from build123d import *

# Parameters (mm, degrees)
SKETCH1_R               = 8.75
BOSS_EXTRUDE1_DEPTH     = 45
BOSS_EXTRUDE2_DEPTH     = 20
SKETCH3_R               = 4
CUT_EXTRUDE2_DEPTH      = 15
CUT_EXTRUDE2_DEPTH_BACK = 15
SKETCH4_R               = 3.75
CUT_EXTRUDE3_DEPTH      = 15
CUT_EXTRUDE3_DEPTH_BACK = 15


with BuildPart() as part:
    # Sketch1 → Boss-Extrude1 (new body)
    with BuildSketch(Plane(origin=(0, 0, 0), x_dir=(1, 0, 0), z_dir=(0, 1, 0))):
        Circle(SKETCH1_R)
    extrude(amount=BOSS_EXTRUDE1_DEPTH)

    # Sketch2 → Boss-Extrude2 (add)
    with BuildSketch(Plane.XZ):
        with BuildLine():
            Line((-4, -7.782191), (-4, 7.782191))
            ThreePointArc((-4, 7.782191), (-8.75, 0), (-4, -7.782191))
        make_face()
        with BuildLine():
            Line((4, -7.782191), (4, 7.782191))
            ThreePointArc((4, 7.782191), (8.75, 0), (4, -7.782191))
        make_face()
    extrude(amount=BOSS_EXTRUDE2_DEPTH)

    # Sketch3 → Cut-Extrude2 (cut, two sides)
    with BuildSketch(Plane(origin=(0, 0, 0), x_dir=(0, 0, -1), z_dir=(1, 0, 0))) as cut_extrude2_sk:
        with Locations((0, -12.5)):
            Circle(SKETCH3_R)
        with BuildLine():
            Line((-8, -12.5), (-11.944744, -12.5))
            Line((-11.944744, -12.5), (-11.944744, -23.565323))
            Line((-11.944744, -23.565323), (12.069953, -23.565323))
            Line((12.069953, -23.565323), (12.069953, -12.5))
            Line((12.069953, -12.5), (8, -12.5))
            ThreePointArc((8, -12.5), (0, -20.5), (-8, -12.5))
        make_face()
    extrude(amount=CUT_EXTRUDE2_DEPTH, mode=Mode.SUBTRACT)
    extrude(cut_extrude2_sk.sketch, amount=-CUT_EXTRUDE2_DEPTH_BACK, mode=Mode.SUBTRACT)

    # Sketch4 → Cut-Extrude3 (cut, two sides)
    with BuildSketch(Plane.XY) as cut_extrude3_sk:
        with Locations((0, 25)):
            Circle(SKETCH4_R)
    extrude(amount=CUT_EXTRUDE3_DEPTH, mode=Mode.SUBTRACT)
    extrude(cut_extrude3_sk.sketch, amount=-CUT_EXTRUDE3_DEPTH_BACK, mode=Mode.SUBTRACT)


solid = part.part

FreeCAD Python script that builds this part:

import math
import FreeCAD as App
import Part
import Sketcher

V = App.Vector

doc = App.newDocument("Part")
body = doc.addObject("PartDesign::Body", "Body")

sketch1 = body.newObject("Sketcher::SketchObject", "Sketch")
sketch1.AttachmentSupport = (doc.getObject("XZ_Plane"), [""])
sketch1.MapMode = "FlatFace"
sketch1.addGeometry(Part.Circle(V(0, 0, 0), V(0, 0, 1), 9), False)
sketch1.addConstraint([
    Sketcher.Constraint("Coincident", 0, 3, -1, 1),
    Sketcher.Constraint("Diameter", 0, 17.5),
])
pad1 = body.newObject("PartDesign::Pad", "Pad")
pad1.Profile = sketch1
pad1.Length = 45
pad1.Reversed = True

sketch2 = body.newObject("Sketcher::SketchObject", "Sketch001")
sketch2.AttachmentSupport = (doc.getObject("XZ_Plane"), [""])
sketch2.MapMode = "FlatFace"
sketch2.addGeometry([
    Part.LineSegment(V(-4, -8, 0), V(-4, 8, 0)),
    Part.ArcOfCircle(Part.Circle(V(0, 0, 0), V(0, 0, 1), 9), math.radians(117), math.radians(243)),
    Part.LineSegment(V(4, 8, 0), V(4, -8, 0)),
    Part.ArcOfCircle(Part.Circle(V(0, 0, 0), V(0, 0, 1), 9), math.radians(-63), math.radians(63)),
], False)
sketch2.addConstraint([
    Sketcher.Constraint("Coincident", 0, 1, 1, 2),
    Sketcher.Constraint("Coincident", 1, 1, 0, 2),
    Sketcher.Constraint("Coincident", 2, 1, 3, 2),
    Sketcher.Constraint("Coincident", 3, 1, 2, 2),
    Sketcher.Constraint("Vertical", 0),
    Sketcher.Constraint("Vertical", 2),
    Sketcher.Constraint("Coincident", 1, 3, -1, 1),
    Sketcher.Constraint("Coincident", 3, 3, -1, 1),
    Sketcher.Constraint("Equal", 1, 3),
    Sketcher.Constraint("Horizontal", 1, 1, 2, 1),
    Sketcher.Constraint("Radius", 1, 8.75),
    Sketcher.Constraint("DistanceX", 0, 1, -1, 1, 4.0),
])
pad2 = body.newObject("PartDesign::Pad", "Pad001")
pad2.Profile = sketch2
pad2.Length = 20

sketch3 = body.newObject("Sketcher::SketchObject", "Sketch002")
sketch3.AttachmentSupport = (doc.getObject("YZ_Plane"), [""])
sketch3.MapMode = "FlatFace"
sketch3.addGeometry([
    Part.Circle(V(-12.5, 0, 0), V(0, 0, 1), 4),
    Part.LineSegment(V(-12.5, 8, 0), V(-12.5, 11.9, 0)),
    Part.LineSegment(V(-12.5, 11.9, 0), V(-23.6, 11.9, 0)),
    Part.LineSegment(V(-23.6, 11.9, 0), V(-23.6, -12.1, 0)),
    Part.LineSegment(V(-23.6, -12.1, 0), V(-12.5, -12.1, 0)),
    Part.LineSegment(V(-12.5, -12.1, 0), V(-12.5, -8, 0)),
    Part.ArcOfCircle(Part.Circle(V(-12.5, 0, 0), V(0, 0, 1), 8), math.radians(90), math.radians(270)),
], False)
sketch3.addConstraint([
    Sketcher.Constraint("Coincident", 1, 2, 2, 1),
    Sketcher.Constraint("Coincident", 2, 2, 3, 1),
    Sketcher.Constraint("Coincident", 3, 2, 4, 1),
    Sketcher.Constraint("Coincident", 4, 2, 5, 1),
    Sketcher.Constraint("Coincident", 5, 2, 6, 2),
    Sketcher.Constraint("Coincident", 6, 1, 1, 1),
    Sketcher.Constraint("Vertical", 1),
    Sketcher.Constraint("Horizontal", 2),
    Sketcher.Constraint("Vertical", 3),
    Sketcher.Constraint("Horizontal", 4),
    Sketcher.Constraint("Vertical", 5),
    Sketcher.Constraint("Coincident", 6, 3, 0, 3),
    Sketcher.Constraint("Symmetric", 5, 2, 6, 1, -1),
    Sketcher.Constraint("Vertical", 6, 3, 1, 2),
    Sketcher.Constraint("Diameter", 0, 8.0),
    Sketcher.Constraint("Radius", 6, 8.0),
    Sketcher.Constraint("DistanceX", 0, 3, -1, 1, 12.5),
    Sketcher.Constraint("DistanceX", 2, 2, 2, 1, 11.065323),
    Sketcher.Constraint("DistanceY", 1, 1, 1, 2, 3.944744),
    Sketcher.Constraint("DistanceY", 3, 2, 3, 1, 24.014697),
])
pocket1 = body.newObject("PartDesign::Pocket", "Pocket")
pocket1.Profile = sketch3
pocket1.Type = "ThroughAll"
pocket1.Midplane = True

sketch4 = body.newObject("Sketcher::SketchObject", "Sketch003")
sketch4.AttachmentSupport = (doc.getObject("XY_Plane"), [""])
sketch4.MapMode = "FlatFace"
sketch4.addGeometry(Part.Circle(V(0, 25, 0), V(0, 0, 1), 3.8), False)
sketch4.addConstraint([
    Sketcher.Constraint("PointOnObject", 0, 3, -2),
    Sketcher.Constraint("Diameter", 0, 7.5),
    Sketcher.Constraint("DistanceY", -1, 1, 0, 3, 25.0),
])
pocket2 = body.newObject("PartDesign::Pocket", "Pocket001")
pocket2.Profile = sketch4
pocket2.Type = "ThroughAll"
pocket2.Midplane = True

doc.recompute()
